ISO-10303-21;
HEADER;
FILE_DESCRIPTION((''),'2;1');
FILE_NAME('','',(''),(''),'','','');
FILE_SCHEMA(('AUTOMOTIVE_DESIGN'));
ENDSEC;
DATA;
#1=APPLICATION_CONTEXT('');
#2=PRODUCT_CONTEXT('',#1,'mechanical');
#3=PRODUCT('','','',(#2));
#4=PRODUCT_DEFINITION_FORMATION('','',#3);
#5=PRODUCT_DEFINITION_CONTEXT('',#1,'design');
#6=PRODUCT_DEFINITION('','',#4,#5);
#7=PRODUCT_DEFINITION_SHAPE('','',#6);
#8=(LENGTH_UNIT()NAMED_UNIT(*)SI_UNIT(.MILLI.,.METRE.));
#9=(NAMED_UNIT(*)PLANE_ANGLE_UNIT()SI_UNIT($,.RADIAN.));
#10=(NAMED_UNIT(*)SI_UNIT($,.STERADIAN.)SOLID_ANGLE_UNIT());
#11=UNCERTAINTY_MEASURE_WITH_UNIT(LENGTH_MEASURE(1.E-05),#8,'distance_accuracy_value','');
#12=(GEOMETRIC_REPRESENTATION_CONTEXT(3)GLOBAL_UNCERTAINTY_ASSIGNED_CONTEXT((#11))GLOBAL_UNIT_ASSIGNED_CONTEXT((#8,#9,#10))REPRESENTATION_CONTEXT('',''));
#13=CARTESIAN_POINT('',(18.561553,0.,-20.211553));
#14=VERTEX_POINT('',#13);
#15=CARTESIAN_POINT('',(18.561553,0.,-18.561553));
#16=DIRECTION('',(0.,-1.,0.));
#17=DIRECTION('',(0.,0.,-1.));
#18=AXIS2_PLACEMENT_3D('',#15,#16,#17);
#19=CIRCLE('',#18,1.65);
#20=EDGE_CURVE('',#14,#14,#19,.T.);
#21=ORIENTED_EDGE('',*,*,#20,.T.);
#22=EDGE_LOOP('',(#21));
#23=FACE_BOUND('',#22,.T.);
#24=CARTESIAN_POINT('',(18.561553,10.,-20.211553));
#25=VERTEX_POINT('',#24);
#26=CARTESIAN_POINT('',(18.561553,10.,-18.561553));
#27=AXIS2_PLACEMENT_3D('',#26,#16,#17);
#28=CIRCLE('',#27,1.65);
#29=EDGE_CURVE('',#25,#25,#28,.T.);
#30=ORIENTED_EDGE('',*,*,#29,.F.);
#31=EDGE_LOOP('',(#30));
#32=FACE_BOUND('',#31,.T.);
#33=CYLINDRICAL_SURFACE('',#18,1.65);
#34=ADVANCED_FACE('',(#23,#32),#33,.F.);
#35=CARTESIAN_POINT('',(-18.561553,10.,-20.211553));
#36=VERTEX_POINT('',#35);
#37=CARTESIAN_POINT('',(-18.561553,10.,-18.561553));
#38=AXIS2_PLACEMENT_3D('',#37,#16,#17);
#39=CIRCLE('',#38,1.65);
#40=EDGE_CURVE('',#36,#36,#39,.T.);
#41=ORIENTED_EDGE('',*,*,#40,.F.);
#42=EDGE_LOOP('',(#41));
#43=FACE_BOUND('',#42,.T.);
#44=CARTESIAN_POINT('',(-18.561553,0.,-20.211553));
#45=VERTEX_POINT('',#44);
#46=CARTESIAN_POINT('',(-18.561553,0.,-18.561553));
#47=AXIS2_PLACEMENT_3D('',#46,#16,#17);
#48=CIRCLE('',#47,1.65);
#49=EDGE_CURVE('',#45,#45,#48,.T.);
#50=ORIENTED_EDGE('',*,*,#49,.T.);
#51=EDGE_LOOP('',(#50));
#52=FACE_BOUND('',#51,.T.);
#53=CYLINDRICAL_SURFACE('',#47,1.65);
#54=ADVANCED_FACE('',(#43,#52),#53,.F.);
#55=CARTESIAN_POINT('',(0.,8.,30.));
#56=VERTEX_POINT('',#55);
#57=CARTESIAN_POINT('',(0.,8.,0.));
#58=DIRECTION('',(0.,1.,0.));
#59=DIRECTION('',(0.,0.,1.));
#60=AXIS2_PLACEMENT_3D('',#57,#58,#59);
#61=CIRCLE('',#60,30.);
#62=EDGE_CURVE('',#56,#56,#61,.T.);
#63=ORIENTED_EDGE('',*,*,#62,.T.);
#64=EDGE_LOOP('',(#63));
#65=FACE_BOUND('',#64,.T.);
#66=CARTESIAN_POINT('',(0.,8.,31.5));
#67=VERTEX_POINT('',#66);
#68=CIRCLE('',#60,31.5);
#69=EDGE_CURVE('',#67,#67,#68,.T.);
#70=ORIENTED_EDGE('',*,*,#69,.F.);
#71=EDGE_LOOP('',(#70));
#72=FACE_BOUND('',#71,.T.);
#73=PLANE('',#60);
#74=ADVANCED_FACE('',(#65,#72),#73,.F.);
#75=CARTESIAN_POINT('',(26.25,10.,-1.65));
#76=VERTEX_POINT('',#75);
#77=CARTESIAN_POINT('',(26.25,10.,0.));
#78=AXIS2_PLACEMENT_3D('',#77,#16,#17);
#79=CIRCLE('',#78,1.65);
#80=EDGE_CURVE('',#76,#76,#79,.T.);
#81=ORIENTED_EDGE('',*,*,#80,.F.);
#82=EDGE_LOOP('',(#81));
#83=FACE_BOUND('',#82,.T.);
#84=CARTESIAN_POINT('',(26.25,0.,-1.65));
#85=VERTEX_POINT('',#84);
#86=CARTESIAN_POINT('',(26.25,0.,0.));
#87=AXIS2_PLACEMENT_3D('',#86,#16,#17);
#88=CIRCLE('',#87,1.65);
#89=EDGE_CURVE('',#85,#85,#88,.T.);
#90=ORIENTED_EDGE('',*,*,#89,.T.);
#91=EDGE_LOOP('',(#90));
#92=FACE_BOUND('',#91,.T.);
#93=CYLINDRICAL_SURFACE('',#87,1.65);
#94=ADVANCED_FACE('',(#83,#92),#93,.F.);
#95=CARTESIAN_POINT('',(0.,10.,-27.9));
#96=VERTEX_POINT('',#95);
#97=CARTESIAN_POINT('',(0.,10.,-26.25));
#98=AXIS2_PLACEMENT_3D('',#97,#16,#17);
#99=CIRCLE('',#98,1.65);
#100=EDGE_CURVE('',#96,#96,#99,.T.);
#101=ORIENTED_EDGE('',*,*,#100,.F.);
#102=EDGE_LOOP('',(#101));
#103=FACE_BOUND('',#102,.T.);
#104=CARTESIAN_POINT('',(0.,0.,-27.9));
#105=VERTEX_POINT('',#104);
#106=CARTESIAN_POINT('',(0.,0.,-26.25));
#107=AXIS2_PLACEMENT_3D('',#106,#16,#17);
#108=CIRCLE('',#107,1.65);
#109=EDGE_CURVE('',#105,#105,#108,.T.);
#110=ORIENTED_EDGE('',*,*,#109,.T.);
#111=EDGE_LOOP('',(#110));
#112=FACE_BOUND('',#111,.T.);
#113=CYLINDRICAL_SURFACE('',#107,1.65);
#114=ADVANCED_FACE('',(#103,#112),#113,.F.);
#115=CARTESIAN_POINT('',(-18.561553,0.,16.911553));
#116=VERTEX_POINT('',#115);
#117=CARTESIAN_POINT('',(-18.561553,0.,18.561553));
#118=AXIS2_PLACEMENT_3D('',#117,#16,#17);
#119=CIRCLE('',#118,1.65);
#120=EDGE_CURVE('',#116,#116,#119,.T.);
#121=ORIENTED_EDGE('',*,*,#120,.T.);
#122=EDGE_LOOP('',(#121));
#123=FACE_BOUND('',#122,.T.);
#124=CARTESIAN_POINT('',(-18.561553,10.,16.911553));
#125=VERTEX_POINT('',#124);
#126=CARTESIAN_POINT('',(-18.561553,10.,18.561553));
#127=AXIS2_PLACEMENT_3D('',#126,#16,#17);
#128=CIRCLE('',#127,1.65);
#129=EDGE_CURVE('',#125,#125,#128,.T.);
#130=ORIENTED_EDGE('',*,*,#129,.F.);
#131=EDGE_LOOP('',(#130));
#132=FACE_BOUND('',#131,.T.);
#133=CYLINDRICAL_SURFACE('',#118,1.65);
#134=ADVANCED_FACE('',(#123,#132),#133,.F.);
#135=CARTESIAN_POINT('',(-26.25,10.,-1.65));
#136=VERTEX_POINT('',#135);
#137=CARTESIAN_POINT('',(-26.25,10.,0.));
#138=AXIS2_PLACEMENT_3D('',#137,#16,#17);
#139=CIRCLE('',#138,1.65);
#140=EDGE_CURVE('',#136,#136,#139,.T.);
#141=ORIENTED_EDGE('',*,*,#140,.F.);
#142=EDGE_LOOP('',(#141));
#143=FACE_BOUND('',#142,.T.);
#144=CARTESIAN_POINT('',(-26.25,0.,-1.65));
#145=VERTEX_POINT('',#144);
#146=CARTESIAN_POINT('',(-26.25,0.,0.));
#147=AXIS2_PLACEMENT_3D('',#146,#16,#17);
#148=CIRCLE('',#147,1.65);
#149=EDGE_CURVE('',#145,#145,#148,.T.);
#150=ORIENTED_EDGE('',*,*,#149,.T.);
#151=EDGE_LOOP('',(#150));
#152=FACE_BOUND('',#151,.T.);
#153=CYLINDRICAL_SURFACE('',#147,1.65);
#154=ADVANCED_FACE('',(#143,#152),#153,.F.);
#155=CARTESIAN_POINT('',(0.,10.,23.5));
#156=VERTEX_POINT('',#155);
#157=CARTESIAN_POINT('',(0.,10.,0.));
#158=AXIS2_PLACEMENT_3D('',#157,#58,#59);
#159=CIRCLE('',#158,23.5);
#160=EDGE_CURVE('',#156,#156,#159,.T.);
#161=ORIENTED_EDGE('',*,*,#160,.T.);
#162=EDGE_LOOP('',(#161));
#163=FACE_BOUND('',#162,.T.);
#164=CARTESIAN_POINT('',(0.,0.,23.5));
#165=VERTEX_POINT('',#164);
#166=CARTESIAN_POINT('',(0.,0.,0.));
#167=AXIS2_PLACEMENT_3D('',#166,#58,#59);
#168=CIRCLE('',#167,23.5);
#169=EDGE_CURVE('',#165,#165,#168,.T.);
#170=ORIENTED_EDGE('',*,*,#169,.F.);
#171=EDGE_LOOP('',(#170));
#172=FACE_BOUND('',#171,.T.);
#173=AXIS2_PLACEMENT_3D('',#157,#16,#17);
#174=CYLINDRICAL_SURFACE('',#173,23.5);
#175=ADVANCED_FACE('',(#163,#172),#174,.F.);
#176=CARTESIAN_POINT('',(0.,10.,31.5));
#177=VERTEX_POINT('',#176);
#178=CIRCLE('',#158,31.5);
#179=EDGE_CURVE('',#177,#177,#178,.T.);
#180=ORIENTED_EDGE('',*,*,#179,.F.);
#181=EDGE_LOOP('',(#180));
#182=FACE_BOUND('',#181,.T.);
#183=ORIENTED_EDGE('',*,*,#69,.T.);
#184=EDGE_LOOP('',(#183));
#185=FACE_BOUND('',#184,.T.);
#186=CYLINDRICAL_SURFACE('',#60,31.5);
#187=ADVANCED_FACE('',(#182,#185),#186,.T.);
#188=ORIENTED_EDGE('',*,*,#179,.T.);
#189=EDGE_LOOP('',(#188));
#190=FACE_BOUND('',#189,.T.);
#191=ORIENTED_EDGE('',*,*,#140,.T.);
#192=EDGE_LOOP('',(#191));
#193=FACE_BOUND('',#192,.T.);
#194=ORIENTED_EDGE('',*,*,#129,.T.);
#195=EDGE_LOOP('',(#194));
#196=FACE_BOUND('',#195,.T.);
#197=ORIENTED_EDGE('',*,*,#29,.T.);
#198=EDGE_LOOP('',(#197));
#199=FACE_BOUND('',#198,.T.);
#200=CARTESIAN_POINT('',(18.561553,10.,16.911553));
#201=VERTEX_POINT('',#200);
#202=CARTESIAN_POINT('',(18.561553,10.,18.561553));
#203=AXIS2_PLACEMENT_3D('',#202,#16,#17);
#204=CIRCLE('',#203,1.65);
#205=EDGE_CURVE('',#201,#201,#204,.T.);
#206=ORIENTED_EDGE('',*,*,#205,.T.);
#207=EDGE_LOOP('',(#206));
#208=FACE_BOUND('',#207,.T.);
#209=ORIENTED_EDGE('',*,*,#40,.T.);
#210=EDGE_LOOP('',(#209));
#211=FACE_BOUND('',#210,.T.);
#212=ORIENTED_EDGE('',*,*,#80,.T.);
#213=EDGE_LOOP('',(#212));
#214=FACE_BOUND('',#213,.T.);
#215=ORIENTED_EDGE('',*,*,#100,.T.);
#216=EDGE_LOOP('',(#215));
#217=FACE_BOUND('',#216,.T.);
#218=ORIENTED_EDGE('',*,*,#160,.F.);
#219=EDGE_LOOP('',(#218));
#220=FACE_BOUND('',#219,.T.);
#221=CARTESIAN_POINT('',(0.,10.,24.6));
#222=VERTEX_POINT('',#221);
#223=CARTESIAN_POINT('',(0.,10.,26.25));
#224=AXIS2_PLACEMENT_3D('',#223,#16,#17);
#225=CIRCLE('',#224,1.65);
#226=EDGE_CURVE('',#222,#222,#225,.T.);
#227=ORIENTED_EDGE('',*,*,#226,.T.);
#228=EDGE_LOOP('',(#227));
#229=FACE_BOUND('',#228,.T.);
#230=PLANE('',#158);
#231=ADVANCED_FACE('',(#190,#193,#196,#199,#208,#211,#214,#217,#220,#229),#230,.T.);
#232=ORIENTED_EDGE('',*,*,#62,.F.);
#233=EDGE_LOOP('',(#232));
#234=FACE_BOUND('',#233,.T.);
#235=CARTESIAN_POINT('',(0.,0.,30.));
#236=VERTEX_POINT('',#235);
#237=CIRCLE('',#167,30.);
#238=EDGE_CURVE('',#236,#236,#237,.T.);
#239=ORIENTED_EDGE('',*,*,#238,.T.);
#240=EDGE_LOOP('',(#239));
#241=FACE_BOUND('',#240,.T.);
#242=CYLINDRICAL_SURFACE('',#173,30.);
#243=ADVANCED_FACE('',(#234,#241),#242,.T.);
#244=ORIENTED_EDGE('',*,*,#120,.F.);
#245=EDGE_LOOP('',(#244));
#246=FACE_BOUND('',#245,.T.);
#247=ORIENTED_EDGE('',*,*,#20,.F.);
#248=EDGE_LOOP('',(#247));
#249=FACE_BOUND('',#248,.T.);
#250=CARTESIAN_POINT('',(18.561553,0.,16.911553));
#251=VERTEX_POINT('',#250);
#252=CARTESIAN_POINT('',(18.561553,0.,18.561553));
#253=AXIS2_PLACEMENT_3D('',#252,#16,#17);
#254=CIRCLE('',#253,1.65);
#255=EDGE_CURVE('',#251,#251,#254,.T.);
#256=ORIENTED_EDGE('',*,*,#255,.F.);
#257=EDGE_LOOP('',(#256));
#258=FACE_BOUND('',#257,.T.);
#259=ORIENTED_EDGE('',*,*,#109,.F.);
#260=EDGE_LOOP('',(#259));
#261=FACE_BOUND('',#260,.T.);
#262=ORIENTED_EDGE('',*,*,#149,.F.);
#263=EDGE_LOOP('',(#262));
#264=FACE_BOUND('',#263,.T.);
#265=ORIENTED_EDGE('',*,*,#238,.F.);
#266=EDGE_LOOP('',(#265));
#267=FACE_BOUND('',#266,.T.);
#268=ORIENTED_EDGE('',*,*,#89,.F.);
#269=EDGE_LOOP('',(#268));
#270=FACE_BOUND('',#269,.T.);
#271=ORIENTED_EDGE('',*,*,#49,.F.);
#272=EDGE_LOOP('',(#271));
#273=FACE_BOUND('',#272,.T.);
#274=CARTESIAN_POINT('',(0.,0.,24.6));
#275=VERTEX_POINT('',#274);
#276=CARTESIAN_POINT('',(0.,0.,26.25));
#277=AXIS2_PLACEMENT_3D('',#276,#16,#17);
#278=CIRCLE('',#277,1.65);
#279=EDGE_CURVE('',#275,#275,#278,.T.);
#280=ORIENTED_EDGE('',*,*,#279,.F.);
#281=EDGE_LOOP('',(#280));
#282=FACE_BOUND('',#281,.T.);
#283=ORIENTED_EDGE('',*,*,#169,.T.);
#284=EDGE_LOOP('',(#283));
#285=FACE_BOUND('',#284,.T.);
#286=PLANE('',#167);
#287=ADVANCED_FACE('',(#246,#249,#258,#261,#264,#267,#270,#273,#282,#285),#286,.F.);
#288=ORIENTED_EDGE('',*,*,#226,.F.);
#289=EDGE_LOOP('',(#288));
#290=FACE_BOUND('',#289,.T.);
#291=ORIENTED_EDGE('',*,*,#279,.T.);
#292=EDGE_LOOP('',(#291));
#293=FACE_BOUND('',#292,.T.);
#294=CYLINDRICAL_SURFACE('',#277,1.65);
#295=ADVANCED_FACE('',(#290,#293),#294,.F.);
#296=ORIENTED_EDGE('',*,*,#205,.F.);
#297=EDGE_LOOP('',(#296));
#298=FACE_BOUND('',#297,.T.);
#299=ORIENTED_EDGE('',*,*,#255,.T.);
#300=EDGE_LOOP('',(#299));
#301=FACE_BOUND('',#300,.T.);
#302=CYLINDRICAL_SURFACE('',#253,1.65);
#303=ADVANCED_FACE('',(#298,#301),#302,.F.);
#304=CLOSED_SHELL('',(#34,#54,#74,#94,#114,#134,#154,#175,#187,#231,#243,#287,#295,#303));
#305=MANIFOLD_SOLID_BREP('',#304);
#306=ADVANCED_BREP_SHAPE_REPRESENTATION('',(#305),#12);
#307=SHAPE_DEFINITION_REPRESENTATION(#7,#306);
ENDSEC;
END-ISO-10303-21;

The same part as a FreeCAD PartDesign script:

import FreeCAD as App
import Part
import Sketcher
from FreeCAD import Vector

doc = App.newDocument("Part")
body = doc.addObject("PartDesign::Body", "Body")

sketch1 = doc.addObject("Sketcher::SketchObject", "Sketch")
body.addObject(sketch1)
sketch1.AttachmentSupport = (doc.XZ_Plane, [""])
sketch1.MapMode = "FlatFace"
sketch1.addGeometry(Part.Circle(Vector(0, 0, 0), Vector(0, 0, 1), 30), False)
sketch1.addGeometry(Part.Circle(Vector(0, 0, 0), Vector(0, 0, 1), 24), False)
sketch1.addConstraint(Sketcher.Constraint("Coincident", 0, 3, -1, 1))
sketch1.addConstraint(Sketcher.Constraint("Coincident", 1, 3, -1, 1))
sketch1.addConstraint(Sketcher.Constraint("Diameter", 0, 60.0))
sketch1.addConstraint(Sketcher.Constraint("Diameter", 1, 47.0))
pad1 = doc.addObject("PartDesign::Pad", "Pad")
body.addObject(pad1)
pad1.Profile = sketch1
pad1.Length = 10
pad1.Reversed = True

sketch2 = doc.addObject("Sketcher::SketchObject", "Sketch001")
body.addObject(sketch2)
sketch2.AttachmentSupport = (doc.XZ_Plane, [""])
sketch2.MapMode = "FlatFace"
sketch2.AttachmentOffset = App.Placement(Vector(0, 0, -10), App.Rotation())
sketch2.addGeometry(Part.Circle(Vector(0, 0, 0), Vector(0, 0, 1), 32), False)
sketch2.addGeometry(Part.Circle(Vector(0, 0, 0), Vector(0, 0, 1), 30), False)
sketch2.addConstraint(Sketcher.Constraint("Coincident", 0, 3, -1, 1))
sketch2.addConstraint(Sketcher.Constraint("Coincident", 1, 3, -1, 1))
sketch2.addConstraint(Sketcher.Constraint("Diameter", 0, 63.0))
sketch2.addConstraint(Sketcher.Constraint("Diameter", 1, 60.0))
pad2 = doc.addObject("PartDesign::Pad", "Pad001")
body.addObject(pad2)
pad2.Profile = sketch2
pad2.Length = 2

sketch3 = doc.addObject("Sketcher::SketchObject", "Sketch002")
body.addObject(sketch3)
sketch3.AttachmentSupport = (doc.XZ_Plane, [""])
sketch3.MapMode = "FlatFace"
sketch3.addGeometry(Part.Circle(Vector(-18.6, 18.6, 0), Vector(0, 0, 1), 1.6), False)
sketch3.addGeometry(Part.Circle(Vector(0, 26.2, 0), Vector(0, 0, 1), 1.6), False)
sketch3.addGeometry(Part.Circle(Vector(-26.2, 0, 0), Vector(0, 0, 1), 1.6), False)
sketch3.addGeometry(Part.Circle(Vector(-18.6, -18.6, 0), Vector(0, 0, 1), 1.6), False)
sketch3.addGeometry(Part.Circle(Vector(0, -26.2, 0), Vector(0, 0, 1), 1.6), False)
sketch3.addGeometry(Part.Circle(Vector(18.6, -18.6, 0), Vector(0, 0, 1), 1.6), False)
sketch3.addGeometry(Part.Circle(Vector(26.2, 0, 0), Vector(0, 0, 1), 1.6), False)
sketch3.addGeometry(Part.Circle(Vector(18.6, 18.6, 0), Vector(0, 0, 1), 1.6), False)
sketch3.addConstraint(Sketcher.Constraint("Equal", 0, 1))
sketch3.addConstraint(Sketcher.Constraint("Equal", 1, 2))
sketch3.addConstraint(Sketcher.Constraint("Equal", 2, 3))
sketch3.addConstraint(Sketcher.Constraint("Equal", 3, 4))
sketch3.addConstraint(Sketcher.Constraint("Equal", 4, 5))
sketch3.addConstraint(Sketcher.Constraint("Equal", 5, 6))
sketch3.addConstraint(Sketcher.Constraint("Equal", 6, 7))
sketch3.addConstraint(Sketcher.Constraint("Symmetric", 1, 3, 4, 3, -1, 1))
sketch3.addConstraint(Sketcher.Constraint("Symmetric", 0, 3, 5, 3, -1, 1))
sketch3.addConstraint(Sketcher.Constraint("Symmetric", 2, 3, 6, 3, -1, 1))
sketch3.addConstraint(Sketcher.Constraint("Symmetric", 3, 3, 7, 3, -1, 1))
sketch3.addConstraint(Sketcher.Constraint("Symmetric", 3, 3, 5, 3, -2))
sketch3.addConstraint(Sketcher.Constraint("PointOnObject", 1, 3, -2))
sketch3.addConstraint(Sketcher.Constraint("PointOnObject", 2, 3, -1))
sketch3.addConstraint(Sketcher.Constraint("Diameter", 0, 3.3))
sketch3.addConstraint(Sketcher.Constraint("DistanceY", 4, 3, 1, 3, 52.5))
sketch3.addConstraint(Sketcher.Constraint("DistanceX", 2, 3, -1, 1, 26.25))
sketch3.addConstraint(Sketcher.Constraint("DistanceX", 0, 3, -1, 1, 18.561553))
sketch3.addConstraint(Sketcher.Constraint("DistanceY", -1, 1, 0, 3, 18.561553))
doc.recompute()
hole = doc.addObject("PartDesign::Hole", "Hole")
body.addObject(hole)
hole.Profile = sketch3
hole.ThreadType = "None"
hole.Diameter = 3.3
hole.DepthType = "ThroughAll"

doc.recompute()
